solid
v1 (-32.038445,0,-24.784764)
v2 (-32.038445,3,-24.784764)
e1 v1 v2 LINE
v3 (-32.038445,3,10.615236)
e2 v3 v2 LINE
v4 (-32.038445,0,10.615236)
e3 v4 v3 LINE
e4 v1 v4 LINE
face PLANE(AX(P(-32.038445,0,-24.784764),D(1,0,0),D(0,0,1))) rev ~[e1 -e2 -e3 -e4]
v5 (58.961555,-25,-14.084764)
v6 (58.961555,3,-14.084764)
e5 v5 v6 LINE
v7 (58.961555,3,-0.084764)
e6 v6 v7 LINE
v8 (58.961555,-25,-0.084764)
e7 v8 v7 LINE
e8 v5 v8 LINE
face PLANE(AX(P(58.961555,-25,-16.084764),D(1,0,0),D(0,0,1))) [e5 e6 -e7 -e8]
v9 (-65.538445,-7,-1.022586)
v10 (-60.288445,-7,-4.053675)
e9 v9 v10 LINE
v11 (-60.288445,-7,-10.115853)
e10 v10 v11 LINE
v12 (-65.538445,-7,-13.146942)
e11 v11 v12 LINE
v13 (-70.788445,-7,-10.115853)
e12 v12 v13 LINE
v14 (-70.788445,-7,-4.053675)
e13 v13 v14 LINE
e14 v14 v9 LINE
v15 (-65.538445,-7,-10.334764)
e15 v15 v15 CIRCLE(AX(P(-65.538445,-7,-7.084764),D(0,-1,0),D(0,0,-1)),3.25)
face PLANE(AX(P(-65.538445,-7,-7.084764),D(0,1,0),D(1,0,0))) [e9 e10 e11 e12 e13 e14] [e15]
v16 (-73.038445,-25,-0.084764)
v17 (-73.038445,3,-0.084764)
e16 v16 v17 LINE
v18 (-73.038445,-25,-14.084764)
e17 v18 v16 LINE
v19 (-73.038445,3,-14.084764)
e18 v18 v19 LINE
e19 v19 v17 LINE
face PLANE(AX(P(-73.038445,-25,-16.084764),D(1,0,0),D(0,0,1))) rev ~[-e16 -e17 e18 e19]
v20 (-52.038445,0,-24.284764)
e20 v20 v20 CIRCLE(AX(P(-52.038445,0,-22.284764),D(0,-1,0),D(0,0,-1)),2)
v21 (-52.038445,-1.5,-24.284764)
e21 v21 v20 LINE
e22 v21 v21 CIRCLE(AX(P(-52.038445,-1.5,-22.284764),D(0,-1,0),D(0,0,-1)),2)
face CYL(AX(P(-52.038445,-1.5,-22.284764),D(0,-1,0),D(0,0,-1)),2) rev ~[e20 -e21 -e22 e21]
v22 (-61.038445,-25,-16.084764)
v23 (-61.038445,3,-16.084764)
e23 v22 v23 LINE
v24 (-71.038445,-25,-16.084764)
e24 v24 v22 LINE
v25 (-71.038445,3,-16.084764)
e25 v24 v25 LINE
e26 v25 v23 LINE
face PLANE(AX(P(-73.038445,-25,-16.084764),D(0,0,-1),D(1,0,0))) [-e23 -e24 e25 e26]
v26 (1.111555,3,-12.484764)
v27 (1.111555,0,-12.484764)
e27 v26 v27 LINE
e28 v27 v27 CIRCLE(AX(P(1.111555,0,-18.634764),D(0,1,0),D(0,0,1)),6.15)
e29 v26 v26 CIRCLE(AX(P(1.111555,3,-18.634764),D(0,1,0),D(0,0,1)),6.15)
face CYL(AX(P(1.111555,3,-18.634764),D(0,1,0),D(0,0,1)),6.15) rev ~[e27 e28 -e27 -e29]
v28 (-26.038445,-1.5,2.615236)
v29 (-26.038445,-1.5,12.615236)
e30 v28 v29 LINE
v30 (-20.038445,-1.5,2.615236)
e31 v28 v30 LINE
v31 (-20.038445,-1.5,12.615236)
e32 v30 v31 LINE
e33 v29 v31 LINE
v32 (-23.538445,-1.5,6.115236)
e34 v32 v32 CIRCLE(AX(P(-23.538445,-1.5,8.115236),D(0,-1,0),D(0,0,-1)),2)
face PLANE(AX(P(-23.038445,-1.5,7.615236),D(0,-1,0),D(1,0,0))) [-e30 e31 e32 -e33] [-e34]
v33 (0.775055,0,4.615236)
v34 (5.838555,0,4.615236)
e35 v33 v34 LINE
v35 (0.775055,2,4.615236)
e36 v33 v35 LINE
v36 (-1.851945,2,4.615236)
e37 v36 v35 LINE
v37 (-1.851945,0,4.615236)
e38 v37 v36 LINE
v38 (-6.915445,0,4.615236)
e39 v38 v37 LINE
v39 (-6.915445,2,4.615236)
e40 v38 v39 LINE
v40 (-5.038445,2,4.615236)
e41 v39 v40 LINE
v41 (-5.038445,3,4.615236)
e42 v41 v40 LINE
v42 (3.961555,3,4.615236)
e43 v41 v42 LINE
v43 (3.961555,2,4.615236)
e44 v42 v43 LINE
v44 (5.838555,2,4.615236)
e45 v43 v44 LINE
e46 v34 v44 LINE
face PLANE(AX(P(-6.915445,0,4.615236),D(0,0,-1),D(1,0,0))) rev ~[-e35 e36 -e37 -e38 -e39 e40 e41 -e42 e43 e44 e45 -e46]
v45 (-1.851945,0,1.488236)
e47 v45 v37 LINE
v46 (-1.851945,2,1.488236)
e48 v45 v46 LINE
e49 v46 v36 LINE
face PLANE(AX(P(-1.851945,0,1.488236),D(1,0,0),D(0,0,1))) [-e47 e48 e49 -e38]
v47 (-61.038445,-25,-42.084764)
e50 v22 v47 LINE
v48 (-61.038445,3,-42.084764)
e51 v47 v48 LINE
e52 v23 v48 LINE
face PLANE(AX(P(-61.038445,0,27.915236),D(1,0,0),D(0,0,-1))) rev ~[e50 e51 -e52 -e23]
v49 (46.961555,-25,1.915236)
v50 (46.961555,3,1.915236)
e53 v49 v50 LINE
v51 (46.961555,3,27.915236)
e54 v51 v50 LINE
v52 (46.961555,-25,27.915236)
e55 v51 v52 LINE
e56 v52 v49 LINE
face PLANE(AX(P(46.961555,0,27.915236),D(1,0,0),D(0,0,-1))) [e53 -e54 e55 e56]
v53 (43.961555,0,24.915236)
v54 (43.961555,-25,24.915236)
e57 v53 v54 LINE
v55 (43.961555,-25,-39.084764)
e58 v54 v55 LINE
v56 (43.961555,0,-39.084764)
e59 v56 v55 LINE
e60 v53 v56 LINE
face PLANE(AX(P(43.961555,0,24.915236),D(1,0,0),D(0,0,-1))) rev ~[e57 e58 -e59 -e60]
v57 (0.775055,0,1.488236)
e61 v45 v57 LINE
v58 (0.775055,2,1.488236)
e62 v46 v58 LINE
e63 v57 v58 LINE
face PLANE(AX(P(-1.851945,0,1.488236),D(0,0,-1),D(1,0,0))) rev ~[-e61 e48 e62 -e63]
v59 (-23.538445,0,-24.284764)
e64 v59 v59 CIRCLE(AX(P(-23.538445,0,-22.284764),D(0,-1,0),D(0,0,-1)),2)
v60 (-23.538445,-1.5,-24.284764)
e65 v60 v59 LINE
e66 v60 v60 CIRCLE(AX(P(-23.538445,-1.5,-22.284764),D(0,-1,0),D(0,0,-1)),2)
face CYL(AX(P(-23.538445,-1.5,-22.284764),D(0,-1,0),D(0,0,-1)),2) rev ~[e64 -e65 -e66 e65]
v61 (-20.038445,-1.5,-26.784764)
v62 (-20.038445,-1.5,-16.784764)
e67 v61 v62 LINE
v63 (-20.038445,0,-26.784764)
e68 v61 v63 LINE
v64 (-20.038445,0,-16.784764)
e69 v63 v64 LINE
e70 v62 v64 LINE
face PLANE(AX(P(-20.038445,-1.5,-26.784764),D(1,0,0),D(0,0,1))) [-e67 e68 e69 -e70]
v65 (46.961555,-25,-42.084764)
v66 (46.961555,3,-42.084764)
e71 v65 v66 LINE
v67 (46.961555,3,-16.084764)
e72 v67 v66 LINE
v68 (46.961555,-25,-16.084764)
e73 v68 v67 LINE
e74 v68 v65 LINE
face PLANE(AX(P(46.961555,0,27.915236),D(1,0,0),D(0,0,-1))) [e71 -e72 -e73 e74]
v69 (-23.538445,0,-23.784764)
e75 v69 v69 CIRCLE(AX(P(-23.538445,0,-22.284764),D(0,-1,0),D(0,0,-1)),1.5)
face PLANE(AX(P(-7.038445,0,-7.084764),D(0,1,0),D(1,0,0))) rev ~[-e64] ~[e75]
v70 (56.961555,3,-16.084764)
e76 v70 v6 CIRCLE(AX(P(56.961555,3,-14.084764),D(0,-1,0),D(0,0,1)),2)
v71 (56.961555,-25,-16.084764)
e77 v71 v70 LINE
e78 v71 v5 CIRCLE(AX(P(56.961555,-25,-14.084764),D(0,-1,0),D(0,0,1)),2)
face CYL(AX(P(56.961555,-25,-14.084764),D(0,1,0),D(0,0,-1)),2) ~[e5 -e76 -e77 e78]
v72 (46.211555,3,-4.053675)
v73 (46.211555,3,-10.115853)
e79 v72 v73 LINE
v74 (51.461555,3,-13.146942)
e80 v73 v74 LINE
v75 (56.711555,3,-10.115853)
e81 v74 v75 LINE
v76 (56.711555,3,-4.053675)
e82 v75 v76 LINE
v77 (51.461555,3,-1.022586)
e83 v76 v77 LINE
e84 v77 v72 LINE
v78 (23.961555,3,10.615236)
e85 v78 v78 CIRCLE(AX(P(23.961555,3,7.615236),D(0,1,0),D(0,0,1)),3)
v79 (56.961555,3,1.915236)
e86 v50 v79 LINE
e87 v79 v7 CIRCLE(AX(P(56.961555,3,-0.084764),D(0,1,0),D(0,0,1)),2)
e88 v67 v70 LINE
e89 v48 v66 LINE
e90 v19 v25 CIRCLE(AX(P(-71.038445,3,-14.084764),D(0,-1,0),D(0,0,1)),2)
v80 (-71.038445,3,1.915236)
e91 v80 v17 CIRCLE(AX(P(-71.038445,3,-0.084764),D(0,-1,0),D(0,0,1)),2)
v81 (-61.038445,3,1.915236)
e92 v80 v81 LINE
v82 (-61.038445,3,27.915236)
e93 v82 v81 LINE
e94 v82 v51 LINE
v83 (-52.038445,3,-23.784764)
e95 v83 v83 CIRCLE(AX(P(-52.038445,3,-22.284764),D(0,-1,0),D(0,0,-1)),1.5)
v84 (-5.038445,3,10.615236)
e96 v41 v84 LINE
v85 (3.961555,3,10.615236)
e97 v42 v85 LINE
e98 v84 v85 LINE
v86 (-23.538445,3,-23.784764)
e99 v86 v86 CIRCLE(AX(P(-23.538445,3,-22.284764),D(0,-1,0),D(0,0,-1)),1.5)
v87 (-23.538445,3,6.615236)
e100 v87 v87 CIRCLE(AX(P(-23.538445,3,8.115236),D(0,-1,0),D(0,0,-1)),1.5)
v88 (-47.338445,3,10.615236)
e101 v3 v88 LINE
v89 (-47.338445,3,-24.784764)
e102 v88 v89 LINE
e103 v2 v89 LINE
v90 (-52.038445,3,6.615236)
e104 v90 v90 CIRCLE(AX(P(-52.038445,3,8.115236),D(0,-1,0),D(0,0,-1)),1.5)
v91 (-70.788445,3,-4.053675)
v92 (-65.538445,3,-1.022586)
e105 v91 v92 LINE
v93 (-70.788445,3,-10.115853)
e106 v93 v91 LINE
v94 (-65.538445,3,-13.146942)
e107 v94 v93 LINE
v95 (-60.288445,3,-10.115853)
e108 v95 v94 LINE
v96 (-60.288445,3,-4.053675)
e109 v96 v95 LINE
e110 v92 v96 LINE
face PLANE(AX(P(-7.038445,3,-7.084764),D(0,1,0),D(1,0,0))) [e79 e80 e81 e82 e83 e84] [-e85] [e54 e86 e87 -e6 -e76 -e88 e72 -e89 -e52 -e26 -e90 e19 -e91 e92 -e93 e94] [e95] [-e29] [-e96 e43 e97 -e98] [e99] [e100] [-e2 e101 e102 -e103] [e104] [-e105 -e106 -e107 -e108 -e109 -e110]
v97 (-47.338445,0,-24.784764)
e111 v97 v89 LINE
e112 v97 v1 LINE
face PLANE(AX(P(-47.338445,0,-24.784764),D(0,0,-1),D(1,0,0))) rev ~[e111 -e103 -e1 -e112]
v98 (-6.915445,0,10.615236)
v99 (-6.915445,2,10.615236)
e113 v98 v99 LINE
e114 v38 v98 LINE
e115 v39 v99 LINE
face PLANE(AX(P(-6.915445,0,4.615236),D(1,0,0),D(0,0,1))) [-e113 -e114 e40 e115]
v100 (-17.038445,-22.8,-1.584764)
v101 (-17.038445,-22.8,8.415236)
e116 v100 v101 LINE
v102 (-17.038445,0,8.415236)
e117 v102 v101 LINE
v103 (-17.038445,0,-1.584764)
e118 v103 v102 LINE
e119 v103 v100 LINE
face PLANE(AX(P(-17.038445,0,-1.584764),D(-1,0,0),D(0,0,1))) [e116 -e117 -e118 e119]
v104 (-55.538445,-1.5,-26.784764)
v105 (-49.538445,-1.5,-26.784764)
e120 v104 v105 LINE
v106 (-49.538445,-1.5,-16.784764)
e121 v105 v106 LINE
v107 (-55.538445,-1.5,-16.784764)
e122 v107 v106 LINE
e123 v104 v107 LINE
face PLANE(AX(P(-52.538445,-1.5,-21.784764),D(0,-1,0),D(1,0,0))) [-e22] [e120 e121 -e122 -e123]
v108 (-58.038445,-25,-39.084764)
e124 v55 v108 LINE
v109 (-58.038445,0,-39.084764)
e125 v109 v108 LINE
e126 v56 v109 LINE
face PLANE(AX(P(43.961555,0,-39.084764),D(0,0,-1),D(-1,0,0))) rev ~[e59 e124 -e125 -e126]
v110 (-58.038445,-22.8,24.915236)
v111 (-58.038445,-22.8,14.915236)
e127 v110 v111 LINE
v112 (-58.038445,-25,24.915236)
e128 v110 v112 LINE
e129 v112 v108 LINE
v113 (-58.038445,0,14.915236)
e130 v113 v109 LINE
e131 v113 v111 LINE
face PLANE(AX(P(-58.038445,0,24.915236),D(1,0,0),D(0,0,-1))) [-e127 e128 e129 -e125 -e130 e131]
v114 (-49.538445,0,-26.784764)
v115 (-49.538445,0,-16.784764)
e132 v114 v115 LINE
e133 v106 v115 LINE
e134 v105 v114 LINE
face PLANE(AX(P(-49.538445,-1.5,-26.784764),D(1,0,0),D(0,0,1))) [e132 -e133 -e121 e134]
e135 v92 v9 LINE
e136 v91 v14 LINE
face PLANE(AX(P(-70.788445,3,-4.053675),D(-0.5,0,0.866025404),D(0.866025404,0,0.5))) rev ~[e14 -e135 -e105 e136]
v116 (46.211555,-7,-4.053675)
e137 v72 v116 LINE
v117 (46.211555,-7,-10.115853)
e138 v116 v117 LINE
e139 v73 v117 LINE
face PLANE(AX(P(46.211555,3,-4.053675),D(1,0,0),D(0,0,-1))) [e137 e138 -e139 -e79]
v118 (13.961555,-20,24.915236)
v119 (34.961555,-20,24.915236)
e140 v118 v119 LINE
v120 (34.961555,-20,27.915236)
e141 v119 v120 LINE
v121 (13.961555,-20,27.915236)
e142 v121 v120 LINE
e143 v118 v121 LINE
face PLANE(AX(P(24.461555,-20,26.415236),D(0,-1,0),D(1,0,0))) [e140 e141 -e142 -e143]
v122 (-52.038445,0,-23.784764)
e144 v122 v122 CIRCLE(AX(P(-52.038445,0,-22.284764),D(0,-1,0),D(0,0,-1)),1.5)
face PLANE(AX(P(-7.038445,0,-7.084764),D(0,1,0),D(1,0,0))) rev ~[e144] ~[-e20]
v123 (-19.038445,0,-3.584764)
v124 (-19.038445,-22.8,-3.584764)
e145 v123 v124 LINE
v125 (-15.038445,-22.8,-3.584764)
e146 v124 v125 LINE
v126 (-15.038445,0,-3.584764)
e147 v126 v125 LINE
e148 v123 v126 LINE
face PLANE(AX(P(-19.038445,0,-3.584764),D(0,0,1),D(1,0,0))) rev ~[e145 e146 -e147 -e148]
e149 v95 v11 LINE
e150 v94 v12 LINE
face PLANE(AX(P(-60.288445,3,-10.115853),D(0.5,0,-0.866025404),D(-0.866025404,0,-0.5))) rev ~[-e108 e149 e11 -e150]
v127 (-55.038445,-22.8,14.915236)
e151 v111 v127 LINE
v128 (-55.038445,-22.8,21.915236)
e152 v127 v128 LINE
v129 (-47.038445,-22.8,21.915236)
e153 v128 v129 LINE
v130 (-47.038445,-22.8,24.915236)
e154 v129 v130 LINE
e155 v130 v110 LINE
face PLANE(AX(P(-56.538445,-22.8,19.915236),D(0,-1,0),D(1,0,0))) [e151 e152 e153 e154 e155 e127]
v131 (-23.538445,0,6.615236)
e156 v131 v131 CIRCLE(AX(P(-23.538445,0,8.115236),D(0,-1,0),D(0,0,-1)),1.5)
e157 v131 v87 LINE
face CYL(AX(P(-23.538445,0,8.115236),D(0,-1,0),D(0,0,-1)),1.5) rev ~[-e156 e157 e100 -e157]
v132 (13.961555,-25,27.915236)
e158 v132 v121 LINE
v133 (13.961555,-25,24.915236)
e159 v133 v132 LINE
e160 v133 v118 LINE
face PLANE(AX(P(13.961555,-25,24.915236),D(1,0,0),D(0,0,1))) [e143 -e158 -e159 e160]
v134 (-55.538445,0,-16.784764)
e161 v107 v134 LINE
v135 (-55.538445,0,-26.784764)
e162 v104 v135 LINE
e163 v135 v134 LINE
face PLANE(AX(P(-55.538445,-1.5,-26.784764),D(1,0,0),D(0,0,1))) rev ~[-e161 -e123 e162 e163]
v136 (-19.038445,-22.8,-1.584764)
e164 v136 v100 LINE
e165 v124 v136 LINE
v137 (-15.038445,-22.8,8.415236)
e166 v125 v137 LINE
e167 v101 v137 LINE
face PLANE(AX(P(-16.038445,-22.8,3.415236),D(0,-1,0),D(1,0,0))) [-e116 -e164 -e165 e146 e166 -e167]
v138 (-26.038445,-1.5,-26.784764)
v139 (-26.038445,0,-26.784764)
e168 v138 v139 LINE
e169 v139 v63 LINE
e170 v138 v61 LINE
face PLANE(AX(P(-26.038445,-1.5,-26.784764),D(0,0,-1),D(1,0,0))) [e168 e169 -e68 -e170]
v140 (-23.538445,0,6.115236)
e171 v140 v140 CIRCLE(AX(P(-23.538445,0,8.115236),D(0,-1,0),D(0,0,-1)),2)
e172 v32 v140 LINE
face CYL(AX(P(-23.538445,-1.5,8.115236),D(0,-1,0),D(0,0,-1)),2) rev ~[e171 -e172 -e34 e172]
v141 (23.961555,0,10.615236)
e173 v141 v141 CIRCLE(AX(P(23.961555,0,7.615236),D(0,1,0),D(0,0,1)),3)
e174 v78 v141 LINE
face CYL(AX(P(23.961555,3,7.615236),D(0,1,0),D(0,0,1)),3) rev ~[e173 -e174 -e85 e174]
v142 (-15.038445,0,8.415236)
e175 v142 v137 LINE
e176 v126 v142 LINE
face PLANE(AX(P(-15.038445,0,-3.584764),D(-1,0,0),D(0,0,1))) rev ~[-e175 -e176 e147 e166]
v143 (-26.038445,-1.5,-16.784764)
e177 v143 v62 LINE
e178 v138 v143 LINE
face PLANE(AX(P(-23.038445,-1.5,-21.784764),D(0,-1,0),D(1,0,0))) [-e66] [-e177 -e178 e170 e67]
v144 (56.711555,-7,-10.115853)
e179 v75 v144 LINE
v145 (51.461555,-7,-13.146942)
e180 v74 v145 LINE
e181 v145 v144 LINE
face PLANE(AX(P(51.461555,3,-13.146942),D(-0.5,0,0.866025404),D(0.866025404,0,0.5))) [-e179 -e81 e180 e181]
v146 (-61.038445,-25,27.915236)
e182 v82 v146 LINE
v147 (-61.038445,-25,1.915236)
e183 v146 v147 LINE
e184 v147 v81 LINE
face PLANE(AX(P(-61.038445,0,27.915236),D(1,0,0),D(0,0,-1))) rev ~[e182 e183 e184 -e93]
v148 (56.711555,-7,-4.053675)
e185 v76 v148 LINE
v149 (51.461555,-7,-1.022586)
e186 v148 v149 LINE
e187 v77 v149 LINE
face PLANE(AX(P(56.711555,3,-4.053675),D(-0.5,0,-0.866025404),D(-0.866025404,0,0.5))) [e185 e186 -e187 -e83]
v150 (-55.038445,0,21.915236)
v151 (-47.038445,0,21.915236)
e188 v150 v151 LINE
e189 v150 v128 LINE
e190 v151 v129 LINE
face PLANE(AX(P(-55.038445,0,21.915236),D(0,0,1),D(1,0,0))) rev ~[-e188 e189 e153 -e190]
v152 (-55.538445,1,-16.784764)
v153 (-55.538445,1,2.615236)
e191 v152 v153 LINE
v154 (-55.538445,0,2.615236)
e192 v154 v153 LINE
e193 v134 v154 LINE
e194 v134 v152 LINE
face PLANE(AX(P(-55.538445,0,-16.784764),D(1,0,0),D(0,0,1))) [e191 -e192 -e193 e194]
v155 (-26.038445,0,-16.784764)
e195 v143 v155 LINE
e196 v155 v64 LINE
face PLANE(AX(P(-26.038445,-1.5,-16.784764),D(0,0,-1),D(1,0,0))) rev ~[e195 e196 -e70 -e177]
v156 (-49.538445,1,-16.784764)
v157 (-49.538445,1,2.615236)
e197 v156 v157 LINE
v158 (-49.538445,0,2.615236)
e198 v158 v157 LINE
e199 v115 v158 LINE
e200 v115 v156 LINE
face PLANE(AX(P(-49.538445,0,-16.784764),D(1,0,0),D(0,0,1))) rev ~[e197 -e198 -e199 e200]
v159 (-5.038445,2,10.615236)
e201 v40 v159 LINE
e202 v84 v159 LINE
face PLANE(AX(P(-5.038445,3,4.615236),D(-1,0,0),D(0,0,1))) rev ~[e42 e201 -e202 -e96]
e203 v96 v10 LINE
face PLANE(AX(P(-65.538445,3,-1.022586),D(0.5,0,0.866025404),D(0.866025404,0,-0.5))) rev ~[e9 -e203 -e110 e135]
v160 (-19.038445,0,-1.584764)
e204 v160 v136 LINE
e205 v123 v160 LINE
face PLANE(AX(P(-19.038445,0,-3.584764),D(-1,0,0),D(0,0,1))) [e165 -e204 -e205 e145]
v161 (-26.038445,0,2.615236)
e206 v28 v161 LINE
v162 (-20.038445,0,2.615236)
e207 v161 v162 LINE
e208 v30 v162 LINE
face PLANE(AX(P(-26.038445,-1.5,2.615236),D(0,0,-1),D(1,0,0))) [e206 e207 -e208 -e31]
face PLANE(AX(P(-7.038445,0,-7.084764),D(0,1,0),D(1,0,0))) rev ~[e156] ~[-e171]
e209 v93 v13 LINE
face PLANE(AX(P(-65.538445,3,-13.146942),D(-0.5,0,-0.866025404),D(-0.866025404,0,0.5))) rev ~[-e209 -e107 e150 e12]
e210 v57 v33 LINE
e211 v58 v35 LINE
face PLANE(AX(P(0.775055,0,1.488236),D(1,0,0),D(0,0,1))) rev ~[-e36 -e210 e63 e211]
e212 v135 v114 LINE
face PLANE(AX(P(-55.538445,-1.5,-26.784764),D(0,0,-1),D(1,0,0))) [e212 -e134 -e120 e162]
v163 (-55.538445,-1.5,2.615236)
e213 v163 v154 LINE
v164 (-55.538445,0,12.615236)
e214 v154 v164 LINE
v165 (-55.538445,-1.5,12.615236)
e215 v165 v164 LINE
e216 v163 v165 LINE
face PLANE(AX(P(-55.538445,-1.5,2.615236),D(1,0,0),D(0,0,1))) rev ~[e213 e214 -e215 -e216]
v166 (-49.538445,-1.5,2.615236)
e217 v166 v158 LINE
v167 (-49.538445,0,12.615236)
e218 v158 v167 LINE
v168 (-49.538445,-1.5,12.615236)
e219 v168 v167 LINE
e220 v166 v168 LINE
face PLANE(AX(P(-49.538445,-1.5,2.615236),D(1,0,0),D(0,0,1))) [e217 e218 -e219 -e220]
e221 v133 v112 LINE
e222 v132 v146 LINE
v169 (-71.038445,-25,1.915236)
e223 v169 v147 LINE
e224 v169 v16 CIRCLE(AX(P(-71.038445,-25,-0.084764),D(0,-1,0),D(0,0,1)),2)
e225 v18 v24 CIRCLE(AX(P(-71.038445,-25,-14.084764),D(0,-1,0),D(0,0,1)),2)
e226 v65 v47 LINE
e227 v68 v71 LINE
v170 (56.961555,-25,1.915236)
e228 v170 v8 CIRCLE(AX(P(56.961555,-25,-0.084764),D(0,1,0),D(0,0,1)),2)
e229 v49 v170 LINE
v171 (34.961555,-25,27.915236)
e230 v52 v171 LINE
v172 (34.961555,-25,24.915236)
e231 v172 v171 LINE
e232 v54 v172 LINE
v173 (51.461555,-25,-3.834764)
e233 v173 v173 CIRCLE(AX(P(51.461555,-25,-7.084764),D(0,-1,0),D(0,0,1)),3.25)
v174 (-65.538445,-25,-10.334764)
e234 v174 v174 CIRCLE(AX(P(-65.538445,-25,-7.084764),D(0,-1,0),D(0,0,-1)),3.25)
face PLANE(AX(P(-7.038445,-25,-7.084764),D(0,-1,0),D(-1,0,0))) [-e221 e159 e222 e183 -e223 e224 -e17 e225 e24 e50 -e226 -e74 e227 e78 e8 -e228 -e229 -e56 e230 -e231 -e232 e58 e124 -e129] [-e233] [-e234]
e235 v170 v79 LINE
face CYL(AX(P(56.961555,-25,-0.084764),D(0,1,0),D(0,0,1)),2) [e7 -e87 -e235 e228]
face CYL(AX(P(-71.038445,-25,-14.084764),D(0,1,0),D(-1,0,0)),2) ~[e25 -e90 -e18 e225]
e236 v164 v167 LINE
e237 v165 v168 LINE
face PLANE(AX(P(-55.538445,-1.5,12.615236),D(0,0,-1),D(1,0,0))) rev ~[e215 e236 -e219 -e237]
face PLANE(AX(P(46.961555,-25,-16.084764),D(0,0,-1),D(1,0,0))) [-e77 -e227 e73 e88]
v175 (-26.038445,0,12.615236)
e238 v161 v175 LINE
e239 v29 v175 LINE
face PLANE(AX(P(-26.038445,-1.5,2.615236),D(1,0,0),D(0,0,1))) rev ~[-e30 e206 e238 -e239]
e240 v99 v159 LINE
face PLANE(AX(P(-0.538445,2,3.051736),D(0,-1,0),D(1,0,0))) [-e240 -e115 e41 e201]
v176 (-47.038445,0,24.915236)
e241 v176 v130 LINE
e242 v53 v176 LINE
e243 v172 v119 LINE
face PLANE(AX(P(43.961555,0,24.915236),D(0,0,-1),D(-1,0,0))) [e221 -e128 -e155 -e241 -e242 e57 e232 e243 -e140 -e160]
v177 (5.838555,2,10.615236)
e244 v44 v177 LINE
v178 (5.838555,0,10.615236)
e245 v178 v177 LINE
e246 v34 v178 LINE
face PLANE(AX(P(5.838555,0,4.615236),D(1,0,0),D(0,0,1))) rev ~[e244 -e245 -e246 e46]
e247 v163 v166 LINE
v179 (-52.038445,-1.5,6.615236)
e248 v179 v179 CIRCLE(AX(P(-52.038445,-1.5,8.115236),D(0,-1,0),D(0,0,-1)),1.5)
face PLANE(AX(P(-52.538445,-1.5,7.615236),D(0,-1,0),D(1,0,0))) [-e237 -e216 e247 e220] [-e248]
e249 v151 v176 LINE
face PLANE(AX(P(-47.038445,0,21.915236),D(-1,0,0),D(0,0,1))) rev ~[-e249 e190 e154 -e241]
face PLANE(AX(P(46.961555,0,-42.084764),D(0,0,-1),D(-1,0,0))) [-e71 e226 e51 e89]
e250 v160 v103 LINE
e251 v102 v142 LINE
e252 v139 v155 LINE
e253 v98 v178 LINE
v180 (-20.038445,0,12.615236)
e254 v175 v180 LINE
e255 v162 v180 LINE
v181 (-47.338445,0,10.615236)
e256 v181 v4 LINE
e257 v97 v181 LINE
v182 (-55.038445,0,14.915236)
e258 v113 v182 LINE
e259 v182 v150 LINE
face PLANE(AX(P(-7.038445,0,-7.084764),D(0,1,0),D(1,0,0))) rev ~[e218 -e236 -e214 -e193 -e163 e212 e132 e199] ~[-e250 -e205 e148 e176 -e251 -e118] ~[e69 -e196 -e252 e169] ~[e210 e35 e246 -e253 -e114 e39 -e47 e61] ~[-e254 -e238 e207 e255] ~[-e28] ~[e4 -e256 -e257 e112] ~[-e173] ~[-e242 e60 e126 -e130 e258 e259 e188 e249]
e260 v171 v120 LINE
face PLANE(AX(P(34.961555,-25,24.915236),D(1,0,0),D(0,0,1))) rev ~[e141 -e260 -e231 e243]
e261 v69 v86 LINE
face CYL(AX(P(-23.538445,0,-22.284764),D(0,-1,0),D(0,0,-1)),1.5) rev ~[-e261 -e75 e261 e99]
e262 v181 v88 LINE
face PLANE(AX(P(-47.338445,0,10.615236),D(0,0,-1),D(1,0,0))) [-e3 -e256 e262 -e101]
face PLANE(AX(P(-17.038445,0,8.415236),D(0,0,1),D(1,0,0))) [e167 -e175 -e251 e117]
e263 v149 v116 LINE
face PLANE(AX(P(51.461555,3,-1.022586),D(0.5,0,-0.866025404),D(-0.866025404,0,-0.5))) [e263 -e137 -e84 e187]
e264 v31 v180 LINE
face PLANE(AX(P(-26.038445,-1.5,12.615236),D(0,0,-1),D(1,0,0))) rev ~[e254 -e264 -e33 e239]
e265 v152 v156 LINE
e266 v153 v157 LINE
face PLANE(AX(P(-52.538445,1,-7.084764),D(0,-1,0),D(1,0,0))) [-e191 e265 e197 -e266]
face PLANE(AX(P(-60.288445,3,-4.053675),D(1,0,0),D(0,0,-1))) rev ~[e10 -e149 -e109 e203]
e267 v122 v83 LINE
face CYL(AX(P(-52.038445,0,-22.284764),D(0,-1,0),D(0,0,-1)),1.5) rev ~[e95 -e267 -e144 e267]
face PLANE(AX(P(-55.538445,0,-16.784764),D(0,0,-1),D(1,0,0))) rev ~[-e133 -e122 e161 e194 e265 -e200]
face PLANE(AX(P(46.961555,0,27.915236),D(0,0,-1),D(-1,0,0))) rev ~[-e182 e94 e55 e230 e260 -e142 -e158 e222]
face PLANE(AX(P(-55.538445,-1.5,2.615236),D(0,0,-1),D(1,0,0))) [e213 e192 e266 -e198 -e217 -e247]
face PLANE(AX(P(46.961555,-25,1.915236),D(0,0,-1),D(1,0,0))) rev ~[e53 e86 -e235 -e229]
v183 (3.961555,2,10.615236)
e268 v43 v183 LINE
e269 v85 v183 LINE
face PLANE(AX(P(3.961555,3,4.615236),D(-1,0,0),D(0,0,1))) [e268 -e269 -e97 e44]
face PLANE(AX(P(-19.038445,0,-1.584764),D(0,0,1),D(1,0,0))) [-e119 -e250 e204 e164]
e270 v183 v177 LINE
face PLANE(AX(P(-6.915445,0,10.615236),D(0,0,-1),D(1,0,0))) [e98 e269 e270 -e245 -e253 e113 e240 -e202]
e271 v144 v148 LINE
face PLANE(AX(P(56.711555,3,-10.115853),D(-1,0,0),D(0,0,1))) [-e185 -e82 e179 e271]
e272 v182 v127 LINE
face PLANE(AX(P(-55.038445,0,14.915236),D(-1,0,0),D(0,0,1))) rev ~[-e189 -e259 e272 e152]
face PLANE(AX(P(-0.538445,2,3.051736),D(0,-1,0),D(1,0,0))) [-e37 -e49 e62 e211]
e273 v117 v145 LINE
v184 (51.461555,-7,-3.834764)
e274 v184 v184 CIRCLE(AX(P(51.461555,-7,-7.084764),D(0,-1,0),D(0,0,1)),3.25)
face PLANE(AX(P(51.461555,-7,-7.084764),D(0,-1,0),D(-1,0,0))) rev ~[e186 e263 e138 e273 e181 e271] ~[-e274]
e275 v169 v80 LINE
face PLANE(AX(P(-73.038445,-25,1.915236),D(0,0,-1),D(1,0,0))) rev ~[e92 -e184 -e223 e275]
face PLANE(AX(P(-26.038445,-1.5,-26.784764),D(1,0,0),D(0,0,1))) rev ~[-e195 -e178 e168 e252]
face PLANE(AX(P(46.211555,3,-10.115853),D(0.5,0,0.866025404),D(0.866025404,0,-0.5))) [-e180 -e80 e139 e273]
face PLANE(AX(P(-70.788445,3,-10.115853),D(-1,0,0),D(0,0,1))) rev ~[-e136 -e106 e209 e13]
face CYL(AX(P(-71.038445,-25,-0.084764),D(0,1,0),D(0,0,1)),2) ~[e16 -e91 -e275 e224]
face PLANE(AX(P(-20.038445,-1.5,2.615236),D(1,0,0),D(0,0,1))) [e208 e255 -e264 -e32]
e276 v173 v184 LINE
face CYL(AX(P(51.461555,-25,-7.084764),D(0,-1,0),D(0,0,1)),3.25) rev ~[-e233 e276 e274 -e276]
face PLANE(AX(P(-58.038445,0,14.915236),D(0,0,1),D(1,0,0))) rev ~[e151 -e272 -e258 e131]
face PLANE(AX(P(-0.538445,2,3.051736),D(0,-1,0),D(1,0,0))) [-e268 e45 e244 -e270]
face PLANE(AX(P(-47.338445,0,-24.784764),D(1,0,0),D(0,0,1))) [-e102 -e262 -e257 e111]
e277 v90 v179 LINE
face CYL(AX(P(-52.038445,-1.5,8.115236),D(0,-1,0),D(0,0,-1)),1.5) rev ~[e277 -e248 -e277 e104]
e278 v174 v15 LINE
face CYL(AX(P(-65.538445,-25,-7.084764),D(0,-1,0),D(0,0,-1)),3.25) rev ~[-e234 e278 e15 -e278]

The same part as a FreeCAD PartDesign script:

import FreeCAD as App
import Part
import Sketcher
Q = App.Units.Quantity


def edges_at(feature, points):
    """Names of the edges that pass closest to the given points."""
    edges = feature.Shape.Edges
    near = lambda p: min(range(len(edges)), key=lambda i: edges[i].distToShape(Part.Vertex(*p))[0])
    return sorted({f"Edge{near(p) + 1}" for p in points})


def add_polygon(sketch, points):
    """Adds a closed chain of lines whose ends are joined by coincident constraints."""
    first, n = sketch.GeometryCount, len(points)
    for a, b in zip(points, points[1:] + points[:1]):
        sketch.addGeometry(Part.LineSegment(App.Vector(*a, 0), App.Vector(*b, 0)), False)
    for i in range(n):
        sketch.addConstraint(Sketcher.Constraint("Coincident", first + i, 2, first + (i + 1) % n, 1))

doc = App.newDocument("Part")
body = doc.addObject("PartDesign::Body", "Body")

# Sketch on XZ plane
sketch1 = doc.addObject("Sketcher::SketchObject", "Sketch")
body.addObject(sketch1)
sketch1.AttachmentSupport = (doc.XZ_Plane, [""])
sketch1.MapMode = "FlatFace"
add_polygon(sketch1, [(-61, -42), (-61, 28), (47, 28), (47, -42)])  # lines 0-3
sketch1.addConstraint(Sketcher.Constraint("Vertical", 0))
sketch1.addConstraint(Sketcher.Constraint("Horizontal", 1))
sketch1.addConstraint(Sketcher.Constraint("Vertical", 2))
sketch1.addConstraint(Sketcher.Constraint("Horizontal", 3))
sketch1.addConstraint(Sketcher.Constraint("DistanceX", 1, 1, 1, 2, Q("108 mm")))
sketch1.addConstraint(Sketcher.Constraint("DistanceY", 0, 1, 0, 2, Q("70 mm")))
sketch1.addConstraint(Sketcher.Constraint("DistanceX", 0, 2, -1, 1, Q("61.038445 mm")))
sketch1.addConstraint(Sketcher.Constraint("DistanceY", -1, 1, 0, 2, Q("27.915236 mm")))
pad1 = doc.addObject("PartDesign::Pad", "Pad")
body.addObject(pad1)
pad1.Profile = sketch1
pad1.Length = 3
pad1.Reversed = True

# Sketch on XZ plane
sketch2 = doc.addObject("Sketcher::SketchObject", "Sketch001")
body.addObject(sketch2)
sketch2.AttachmentSupport = (doc.XZ_Plane, [""])
sketch2.MapMode = "FlatFace"
add_polygon(sketch2, [(47, -42), (47, 28), (-61, 28), (-61, -42)])  # lines 0-3
add_polygon(sketch2, [(-58, 25), (44, 25), (44, -39), (-58, -39)])  # lines 4-7
sketch2.addConstraint(Sketcher.Constraint("Vertical", 0))
sketch2.addConstraint(Sketcher.Constraint("Horizontal", 1))
sketch2.addConstraint(Sketcher.Constraint("Vertical", 2))
sketch2.addConstraint(Sketcher.Constraint("Horizontal", 3))
sketch2.addConstraint(Sketcher.Constraint("Horizontal", 4))
sketch2.addConstraint(Sketcher.Constraint("Vertical", 5))
sketch2.addConstraint(Sketcher.Constraint("Horizontal", 6))
sketch2.addConstraint(Sketcher.Constraint("Vertical", 7))
sketch2.addConstraint(Sketcher.Constraint("DistanceX", 1, 2, 1, 1, Q("108 mm")))
sketch2.addConstraint(Sketcher.Constraint("DistanceX", 4, 1, 4, 2, Q("102 mm")))
sketch2.addConstraint(Sketcher.Constraint("DistanceY", 0, 1, 0, 2, Q("70 mm")))
sketch2.addConstraint(Sketcher.Constraint("DistanceY", 5, 2, 5, 1, Q("64 mm")))
sketch2.addConstraint(Sketcher.Constraint("DistanceX", 4, 2, 0, 2, Q("3 mm")))
sketch2.addConstraint(Sketcher.Constraint("DistanceY", 4, 2, 0, 2, Q("3 mm")))
sketch2.addConstraint(Sketcher.Constraint("DistanceX", -1, 1, 0, 2, Q("46.961555 mm")))
sketch2.addConstraint(Sketcher.Constraint("DistanceY", -1, 1, 0, 2, Q("27.915236 mm")))
pad2 = doc.addObject("PartDesign::Pad", "Pad001")
body.addObject(pad2)
pad2.Profile = sketch2
pad2.Length = 25

# Sketch on XZ plane
sketch3 = doc.addObject("Sketcher::SketchObject", "Sketch002")
body.addObject(sketch3)
sketch3.AttachmentSupport = (doc.XZ_Plane, [""])
sketch3.MapMode = "FlatFace"
add_polygon(sketch3, [(-17, 8.4), (-17, -1.6), (-19, -1.6), (-19, -3.6), (-15, -3.6), (-15, 8.4)])  # lines 0-5
add_polygon(sketch3, [(-58, 14.9), (-55, 14.9), (-55, 21.9), (-47, 21.9), (-47, 24.9), (-58, 24.9)])  # lines 6-11
sketch3.addConstraint(Sketcher.Constraint("Vertical", 0))
sketch3.addConstraint(Sketcher.Constraint("Horizontal", 1))
sketch3.addConstraint(Sketcher.Constraint("Vertical", 2))
sketch3.addConstraint(Sketcher.Constraint("Horizontal", 3))
sketch3.addConstraint(Sketcher.Constraint("Vertical", 4))
sketch3.addConstraint(Sketcher.Constraint("Horizontal", 5))
sketch3.addConstraint(Sketcher.Constraint("Horizontal", 6))
sketch3.addConstraint(Sketcher.Constraint("Vertical", 7))
sketch3.addConstraint(Sketcher.Constraint("Horizontal", 8))
sketch3.addConstraint(Sketcher.Constraint("Vertical", 9))
sketch3.addConstraint(Sketcher.Constraint("Horizontal", 10))
sketch3.addConstraint(Sketcher.Constraint("Vertical", 11))
sketch3.addConstraint(Sketcher.Constraint("Equal", 1, 5))
sketch3.addConstraint(Sketcher.Constraint("Equal", 5, 2))
sketch3.addConstraint(Sketcher.Constraint("Equal", 6, 9))
sketch3.addConstraint(Sketcher.Constraint("Equal", 0, 11))
sketch3.addConstraint(Sketcher.Constraint("DistanceX", 1, 2, 1, 1, Q("2 mm")))
sketch3.addConstraint(Sketcher.Constraint("DistanceX", 6, 1, 6, 2, Q("3 mm")))
sketch3.addConstraint(Sketcher.Constraint("DistanceX", 8, 1, 8, 2, Q("8 mm")))
sketch3.addConstraint(Sketcher.Constraint("DistanceY", 0, 2, 0, 1, Q("10 mm")))
sketch3.addConstraint(Sketcher.Constraint("DistanceX", 6, 2, 5, 2, Q("38 mm")))
sketch3.addConstraint(Sketcher.Constraint("DistanceY", 5, 2, 6, 2, Q("6.5 mm")))
sketch3.addConstraint(Sketcher.Constraint("DistanceX", 0, 2, -1, 1, Q("17.038445 mm")))
sketch3.addConstraint(Sketcher.Constraint("DistanceY", 0, 2, -1, 1, Q("1.584764 mm")))
pad3 = doc.addObject("PartDesign::Pad", "Pad002")
body.addObject(pad3)
pad3.Profile = sketch3
pad3.Length = 22.8

# Sketch on XZ plane
sketch4 = doc.addObject("Sketcher::SketchObject", "Sketch003")
body.addObject(sketch4)
sketch4.AttachmentSupport = (doc.XZ_Plane, [""])
sketch4.MapMode = "FlatFace"
add_polygon(sketch4, [(-56, 3), (-56, -17), (-50, -17), (-50, 3)])  # lines 0-3
sketch4.addConstraint(Sketcher.Constraint("Vertical", 0))
sketch4.addConstraint(Sketcher.Constraint("Horizontal", 1))
sketch4.addConstraint(Sketcher.Constraint("Vertical", 2))
sketch4.addConstraint(Sketcher.Constraint("Horizontal", 3))
sketch4.addConstraint(Sketcher.Constraint("DistanceX", 1, 1, 1, 2, Q("6 mm")))
sketch4.addConstraint(Sketcher.Constraint("DistanceY", 0, 2, 0, 1, Q("19.4 mm")))
sketch4.addConstraint(Sketcher.Constraint("DistanceX", 0, 2, -1, 1, Q("55.538445 mm")))
sketch4.addConstraint(Sketcher.Constraint("DistanceY", 0, 2, -1, 1, Q("16.784764 mm")))
pocket1 = doc.addObject("PartDesign::Pocket", "Pocket")
body.addObject(pocket1)
pocket1.Profile = sketch4
pocket1.Length = 1

# Sketch on XZ plane
sketch5 = doc.addObject("Sketcher::SketchObject", "Sketch004")
body.addObject(sketch5)
sketch5.AttachmentSupport = (doc.XZ_Plane, [""])
sketch5.MapMode = "FlatFace"
sketch5.addGeometry(Part.Circle(App.Vector(-52, -22.3, 0), App.Vector(0, 0, 1), 1.5), False)  # 0
sketch5.addGeometry(Part.Circle(App.Vector(-23.5, -22.3, 0), App.Vector(0, 0, 1), 1.5), False)  # 1
sketch5.addGeometry(Part.Circle(App.Vector(-23.5, 8.1, 0), App.Vector(0, 0, 1), 1.5), False)  # 2
sketch5.addGeometry(Part.Circle(App.Vector(-52, 8.1, 0), App.Vector(0, 0, 1), 1.5), False)  # 3
add_polygon(sketch5, [(-47.3, 10.6), (-47.3, -24.8), (-32, -24.8), (-32, 10.6)])  # lines 4-7
sketch5.addConstraint(Sketcher.Constraint("Vertical", 4))
sketch5.addConstraint(Sketcher.Constraint("Horizontal", 5))
sketch5.addConstraint(Sketcher.Constraint("Vertical", 6))
sketch5.addConstraint(Sketcher.Constraint("Horizontal", 7))
sketch5.addConstraint(Sketcher.Constraint("Equal", 0, 1))
sketch5.addConstraint(Sketcher.Constraint("Equal", 1, 2))
sketch5.addConstraint(Sketcher.Constraint("Equal", 2, 3))
sketch5.addConstraint(Sketcher.Constraint("Horizontal", 0, 3, 1, 3))
sketch5.addConstraint(Sketcher.Constraint("Horizontal", 2, 3, 3, 3))
sketch5.addConstraint(Sketcher.Constraint("Vertical", 1, 3, 2, 3))
sketch5.addConstraint(Sketcher.Constraint("Vertical", 0, 3, 3, 3))
sketch5.addConstraint(Sketcher.Constraint("Diameter", 0, Q("3 mm")))
sketch5.addConstraint(Sketcher.Constraint("DistanceX", 5, 1, 5, 2, Q("15.3 mm")))
sketch5.addConstraint(Sketcher.Constraint("DistanceY", 4, 2, 4, 1, Q("35.4 mm")))
sketch5.addConstraint(Sketcher.Constraint("DistanceX", 0, 3, 5, 2, Q("20 mm")))
sketch5.addConstraint(Sketcher.Constraint("DistanceX", 0, 3, 1, 3, Q("28.5 mm")))
sketch5.addConstraint(Sketcher.Constraint("DistanceY", 1, 3, 2, 3, Q("30.4 mm")))
sketch5.addConstraint(Sketcher.Constraint("DistanceY", 4, 2, 0, 3, Q("2.5 mm")))
sketch5.addConstraint(Sketcher.Constraint("DistanceX", 0, 3, -1, 1, Q("52.038445 mm")))
sketch5.addConstraint(Sketcher.Constraint("DistanceY", 0, 3, -1, 1, Q("22.284764 mm")))
pocket2 = doc.addObject("PartDesign::Pocket", "Pocket001")
body.addObject(pocket2)
pocket2.Profile = sketch5
pocket2.Type = "ThroughAll"

# Sketch on XZ plane
sketch6 = doc.addObject("Sketcher::SketchObject", "Sketch005")
body.addObject(sketch6)
sketch6.AttachmentSupport = (doc.XZ_Plane, [""])
sketch6.MapMode = "FlatFace"
sketch6.AttachmentOffset = App.Placement(App.Vector(0, 0, 1.5), App.Rotation())
add_polygon(sketch6, [(-55.5, 12.6), (-55.5, 2.6), (-49.5, 2.6), (-49.5, 12.6)])  # lines 0-3
sketch6.addGeometry(Part.Circle(App.Vector(-52, 8.1, 0), App.Vector(0, 0, 1), 1.5), False)  # 4
add_polygon(sketch6, [(-55.5, -16.8), (-55.5, -26.8), (-49.5, -26.8), (-49.5, -16.8)])  # lines 5-8
sketch6.addGeometry(Part.Circle(App.Vector(-52, -22.3, 0), App.Vector(0, 0, 1), 2), False)  # 9
add_polygon(sketch6, [(-26, -16.8), (-26, -26.8), (-20, -26.8), (-20, -16.8)])  # lines 10-13
sketch6.addGeometry(Part.Circle(App.Vector(-23.5, -22.3, 0), App.Vector(0, 0, 1), 2), False)  # 14
add_polygon(sketch6, [(-26, 12.6), (-26, 2.6), (-20, 2.6), (-20, 12.6)])  # lines 15-18
sketch6.addGeometry(Part.Circle(App.Vector(-23.5, 8.1, 0), App.Vector(0, 0, 1), 2), False)  # 19
sketch6.addConstraint(Sketcher.Constraint("Vertical", 0))
sketch6.addConstraint(Sketcher.Constraint("Horizontal", 1))
sketch6.addConstraint(Sketcher.Constraint("Vertical", 2))
sketch6.addConstraint(Sketcher.Constraint("Horizontal", 3))
sketch6.addConstraint(Sketcher.Constraint("Vertical", 5))
sketch6.addConstraint(Sketcher.Constraint("Horizontal", 6))
sketch6.addConstraint(Sketcher.Constraint("Vertical", 7))
sketch6.addConstraint(Sketcher.Constraint("Horizontal", 8))
sketch6.addConstraint(Sketcher.Constraint("Vertical", 10))
sketch6.addConstraint(Sketcher.Constraint("Horizontal", 11))
sketch6.addConstraint(Sketcher.Constraint("Vertical", 12))
sketch6.addConstraint(Sketcher.Constraint("Horizontal", 13))
sketch6.addConstraint(Sketcher.Constraint("Vertical", 15))
sketch6.addConstraint(Sketcher.Constraint("Horizontal", 16))
sketch6.addConstraint(Sketcher.Constraint("Vertical", 17))
sketch6.addConstraint(Sketcher.Constraint("Horizontal", 18))
sketch6.addConstraint(Sketcher.Constraint("Equal", 9, 14))
sketch6.addConstraint(Sketcher.Constraint("Equal", 14, 19))
sketch6.addConstraint(Sketcher.Constraint("Horizontal", 9, 3, 14, 3))
sketch6.addConstraint(Sketcher.Constraint("Horizontal", 4, 3, 19, 3))
sketch6.addConstraint(Sketcher.Constraint("Horizontal", 6, 2, 10, 2))
sketch6.addConstraint(Sketcher.Constraint("Horizontal", 8, 2, 12, 2))
sketch6.addConstraint(Sketcher.Constraint("Horizontal", 1, 2, 15, 2))
sketch6.addConstraint(Sketcher.Constraint("Horizontal", 3, 2, 17, 2))
sketch6.addConstraint(Sketcher.Constraint("Vertical", 4, 3, 9, 3))
sketch6.addConstraint(Sketcher.Constraint("Vertical", 14, 3, 19, 3))
sketch6.addConstraint(Sketcher.Constraint("Vertical", 3, 2, 5, 2))
sketch6.addConstraint(Sketcher.Constraint("Vertical", 2, 2, 6, 2))
sketch6.addConstraint(Sketcher.Constraint("Vertical", 13, 2, 15, 2))
sketch6.addConstraint(Sketcher.Constraint("Vertical", 12, 2, 16, 2))
sketch6.addConstraint(Sketcher.Constraint("Equal", 8, 11))
sketch6.addConstraint(Sketcher.Constraint("Equal", 2, 5))
sketch6.addConstraint(Sketcher.Constraint("Diameter", 4, Q("3 mm")))
sketch6.addConstraint(Sketcher.Constraint("Diameter", 9, Q("4 mm")))
sketch6.addConstraint(Sketcher.Constraint("DistanceX", 1, 1, 1, 2, Q("6 mm")))
sketch6.addConstraint(Sketcher.Constraint("DistanceY", 0, 2, 0, 1, Q("10 mm")))
sketch6.addConstraint(Sketcher.Constraint("DistanceX", 0, 2, 19, 3, Q("32 mm")))
sketch6.addConstraint(Sketcher.Constraint("DistanceX", 9, 3, 10, 2, Q("26 mm")))
sketch6.addConstraint(Sketcher.Constraint("DistanceY", 9, 3, 4, 3, Q("30.4 mm")))
sketch6.addConstraint(Sketcher.Constraint("DistanceX", 9, 3, 14, 3, Q("28.5 mm")))
sketch6.addConstraint(Sketcher.Constraint("DistanceY", 0, 2, 4, 3, Q("5.5 mm")))
sketch6.addConstraint(Sketcher.Constraint("DistanceY", 5, 2, 9, 3, Q("4.5 mm")))
sketch6.addConstraint(Sketcher.Constraint("DistanceX", 4, 3, -1, 1, Q("52.038445 mm")))
sketch6.addConstraint(Sketcher.Constraint("DistanceY", -1, 1, 4, 3, Q("8.115236 mm")))
pad4 = doc.addObject("PartDesign::Pad", "Pad003")
body.addObject(pad4)
pad4.Profile = sketch6
pad4.Length = 1.5
pad4.Reversed = True

# Sketch on XZ plane
sketch7 = doc.addObject("Sketcher::SketchObject", "Sketch006")
body.addObject(sketch7)
sketch7.AttachmentSupport = (doc.XZ_Plane, [""])
sketch7.MapMode = "FlatFace"
sketch7.AttachmentOffset = App.Placement(App.Vector(0, 0, -3), App.Rotation())
add_polygon(sketch7, [(-5, 11), (-5, 5), (4, 5), (4, 11)])  # lines 0-3
sketch7.addConstraint(Sketcher.Constraint("Vertical", 0))
sketch7.addConstraint(Sketcher.Constraint("Horizontal", 1))
sketch7.addConstraint(Sketcher.Constraint("Vertical", 2))
sketch7.addConstraint(Sketcher.Constraint("Horizontal", 3))
sketch7.addConstraint(Sketcher.Constraint("DistanceX", 1, 1, 1, 2, Q("9 mm")))
sketch7.addConstraint(Sketcher.Constraint("DistanceY", 0, 2, 0, 1, Q("6 mm")))
sketch7.addConstraint(Sketcher.Constraint("DistanceX", 0, 2, -1, 1, Q("5.038445 mm")))
sketch7.addConstraint(Sketcher.Constraint("DistanceY", -1, 1, 0, 2, Q("4.615236 mm")))
pocket3 = doc.addObject("PartDesign::Pocket", "Pocket002")
body.addObject(pocket3)
pocket3.Profile = sketch7
pocket3.Length = 1
pocket3.Reversed = True

# Sketch on XZ plane
sketch8 = doc.addObject("Sketcher::SketchObject", "Sketch007")
body.addObject(sketch8)
sketch8.AttachmentSupport = (doc.XZ_Plane, [""])
sketch8.MapMode = "FlatFace"
add_polygon(sketch8, [(-1.9, 4.6), (-1.9, 1.5), (0.8, 1.5), (0.8, 4.6), (5.8, 4.6), (5.8, 10.6), (-6.9, 10.6), (-6.9, 4.6)])  # lines 0-7
sketch8.addConstraint(Sketcher.Constraint("Vertical", 0))
sketch8.addConstraint(Sketcher.Constraint("Horizontal", 1))
sketch8.addConstraint(Sketcher.Constraint("Vertical", 2))
sketch8.addConstraint(Sketcher.Constraint("Horizontal", 3))
sketch8.addConstraint(Sketcher.Constraint("Vertical", 4))
sketch8.addConstraint(Sketcher.Constraint("Horizontal", 5))
sketch8.addConstraint(Sketcher.Constraint("Vertical", 6))
sketch8.addConstraint(Sketcher.Constraint("Horizontal", 7))
sketch8.addConstraint(Sketcher.Constraint("Horizontal", 3, 2, 6, 2))
sketch8.addConstraint(Sketcher.Constraint("Equal", 3, 7))
sketch8.addConstraint(Sketcher.Constraint("DistanceY", 4, 1, 4, 2, Q("6 mm")))
sketch8.addConstraint(Sketcher.Constraint("DistanceX", 1, 1, 1, 2, Q("2.627 mm")))
sketch8.addConstraint(Sketcher.Constraint("DistanceX", 5, 2, 5, 1, Q("12.754 mm")))
sketch8.addConstraint(Sketcher.Constraint("DistanceY", 0, 2, 0, 1, Q("3.127 mm")))
sketch8.addConstraint(Sketcher.Constraint("DistanceX", 0, 2, -1, 1, Q("1.851945 mm")))
sketch8.addConstraint(Sketcher.Constraint("DistanceY", -1, 1, 0, 2, Q("1.488236 mm")))
pocket4 = doc.addObject("PartDesign::Pocket", "Pocket003")
body.addObject(pocket4)
pocket4.Profile = sketch8
pocket4.Length = 2

# Sketch on XZ plane
sketch9 = doc.addObject("Sketcher::SketchObject", "Sketch008")
body.addObject(sketch9)
sketch9.AttachmentSupport = (doc.XZ_Plane, [""])
sketch9.MapMode = "FlatFace"
sketch9.AttachmentOffset = App.Placement(App.Vector(0, 0, -3), App.Rotation())
sketch9.addGeometry(Part.Circle(App.Vector(1.1, -18.6, 0), App.Vector(0, 0, 1), 6.2), False)
sketch9.addGeometry(Part.Circle(App.Vector(24, 7.6, 0), App.Vector(0, 0, 1), 3), False)
sketch9.addConstraint(Sketcher.Constraint("Diameter", 1, Q("6 mm")))
sketch9.addConstraint(Sketcher.Constraint("Diameter", 0, Q("12.3 mm")))
sketch9.addConstraint(Sketcher.Constraint("DistanceX", 0, 3, 1, 3, Q("22.85 mm")))
sketch9.addConstraint(Sketcher.Constraint("DistanceY", 0, 3, 1, 3, Q("26.25 mm")))
sketch9.addConstraint(Sketcher.Constraint("DistanceX", -1, 1, 0, 3, Q("1.111555 mm")))
sketch9.addConstraint(Sketcher.Constraint("DistanceY", 0, 3, -1, 1, Q("18.634764 mm")))
pocket5 = doc.addObject("PartDesign::Pocket", "Pocket004")
body.addObject(pocket5)
pocket5.Profile = sketch9
pocket5.Type = "ThroughAll"
pocket5.Reversed = True

# Sketch on XZ plane
sketch10 = doc.addObject("Sketcher::SketchObject", "Sketch009")
body.addObject(sketch10)
sketch10.AttachmentSupport = (doc.XZ_Plane, [""])
sketch10.MapMode = "FlatFace"
sketch10.AttachmentOffset = App.Placement(App.Vector(0, 0, 25), App.Rotation())
add_polygon(sketch10, [(14, 27.9), (14, 24.9), (35, 24.9), (35, 27.9)])  # lines 0-3
sketch10.addConstraint(Sketcher.Constraint("Vertical", 0))
sketch10.addConstraint(Sketcher.Constraint("Horizontal", 1))
sketch10.addConstraint(Sketcher.Constraint("Vertical", 2))
sketch10.addConstraint(Sketcher.Constraint("Horizontal", 3))
sketch10.addConstraint(Sketcher.Constraint("DistanceX", 1, 1, 1, 2, Q("21 mm")))
sketch10.addConstraint(Sketcher.Constraint("DistanceY", 0, 2, 0, 1, Q("3 mm")))
sketch10.addConstraint(Sketcher.Constraint("DistanceX", -1, 1, 0, 2, Q("13.961555 mm")))
sketch10.addConstraint(Sketcher.Constraint("DistanceY", -1, 1, 0, 2, Q("24.915236 mm")))
pocket6 = doc.addObject("PartDesign::Pocket", "Pocket005")
body.addObject(pocket6)
pocket6.Profile = sketch10
pocket6.Length = 5

# Sketch on XZ plane
sketch11 = doc.addObject("Sketcher::SketchObject", "Sketch010")
body.addObject(sketch11)
sketch11.AttachmentSupport = (doc.XZ_Plane, [""])
sketch11.MapMode = "FlatFace"
sketch11.AttachmentOffset = App.Placement(App.Vector(0, 0, 25), App.Rotation())
add_polygon(sketch11, [(-73, 1.9), (-73, -16.1), (-61, -16.1), (-61, 1.9)])  # lines 0-3
sketch11.addGeometry(Part.Circle(App.Vector(-65.5, -7.1, 0), App.Vector(0, 0, 1), 3.2), False)  # 4
add_polygon(sketch11, [(47, 1.9), (47, -16.1), (59, -16.1), (59, 1.9)])  # lines 5-8
sketch11.addGeometry(Part.Circle(App.Vector(51.5, -7.1, 0), App.Vector(0, 0, 1), 3.2), False)  # 9
sketch11.addConstraint(Sketcher.Constraint("Vertical", 0))
sketch11.addConstraint(Sketcher.Constraint("Horizontal", 1))
sketch11.addConstraint(Sketcher.Constraint("Vertical", 2))
sketch11.addConstraint(Sketcher.Constraint("Horizontal", 3))
sketch11.addConstraint(Sketcher.Constraint("Vertical", 5))
sketch11.addConstraint(Sketcher.Constraint("Horizontal", 6))
sketch11.addConstraint(Sketcher.Constraint("Vertical", 7))
sketch11.addConstraint(Sketcher.Constraint("Horizontal", 8))
sketch11.addConstraint(Sketcher.Constraint("Equal", 4, 9))
sketch11.addConstraint(Sketcher.Constraint("Horizontal", 4, 3, 9, 3))
sketch11.addConstraint(Sketcher.Constraint("Horizontal", 1, 2, 5, 2))
sketch11.addConstraint(Sketcher.Constraint("Horizontal", 3, 2, 7, 2))
sketch11.addConstraint(Sketcher.Constraint("Equal", 3, 6))
sketch11.addConstraint(Sketcher.Constraint("Diameter", 4, Q("6.5 mm")))
sketch11.addConstraint(Sketcher.Constraint("DistanceX", 1, 1, 1, 2, Q("12 mm")))
sketch11.addConstraint(Sketcher.Constraint("DistanceY", 0, 2, 0, 1, Q("18 mm")))
sketch11.addConstraint(Sketcher.Constraint("DistanceX", 4, 3, 9, 3, Q("117 mm")))
sketch11.addConstraint(Sketcher.Constraint("DistanceY", 0, 2, 4, 3, Q("9 mm")))
sketch11.addConstraint(Sketcher.Constraint("DistanceX", 1, 2, 5, 2, Q("108 mm")))
sketch11.addConstraint(Sketcher.Constraint("DistanceX", 0, 2, 4, 3, Q("7.5 mm")))
sketch11.addConstraint(Sketcher.Constraint("DistanceX", 4, 3, -1, 1, Q("65.538445 mm")))
sketch11.addConstraint(Sketcher.Constraint("DistanceY", 4, 3, -1, 1, Q("7.084764 mm")))
pad5 = doc.addObject("PartDesign::Pad", "Pad004")
body.addObject(pad5)
pad5.Profile = sketch11
pad5.Length = 28
pad5.Reversed = True
doc.recompute()

fillet = doc.addObject("PartDesign::Fillet", "Fillet")
body.addObject(fillet)
fillet.Base = (pad5, edges_at(pad5, [
    (-73.038, -11, -16.085),
    (-73.038, -11, 1.915),
    (58.962, -11, 1.915),
    (58.962, -11, -16.085),
]))
fillet.Radius = 2

# Sketch on XZ plane
sketch12 = doc.addObject("Sketcher::SketchObject", "Sketch011")
body.addObject(sketch12)
sketch12.AttachmentSupport = (doc.XZ_Plane, [""])
sketch12.MapMode = "FlatFace"
sketch12.AttachmentOffset = App.Placement(App.Vector(0, 0, -3), App.Rotation())
add_polygon(sketch12, [(-60, -4), (-60, -10), (-66, -13), (-71, -10), (-71, -4), (-66, -1)])  # lines 0-5
add_polygon(sketch12, [(46, -4), (51, -1), (57, -4), (57, -10), (51, -13), (46, -10)])  # lines 6-11
sketch12.addConstraint(Sketcher.Constraint("Vertical", 0))
sketch12.addConstraint(Sketcher.Constraint("Vertical", 3))
sketch12.addConstraint(Sketcher.Constraint("Vertical", 8))
sketch12.addConstraint(Sketcher.Constraint("Vertical", 11))
sketch12.addConstraint(Sketcher.Constraint("Parallel", 1, 4))
sketch12.addConstraint(Sketcher.Constraint("Parallel", 2, 5))
sketch12.addConstraint(Sketcher.Constraint("Parallel", 4, 6))
sketch12.addConstraint(Sketcher.Constraint("Parallel", 5, 7))
sketch12.addConstraint(Sketcher.Constraint("Parallel", 6, 9))
sketch12.addConstraint(Sketcher.Constraint("Parallel", 7, 10))
sketch12.addConstraint(Sketcher.Constraint("Horizontal", 0, 2, 2, 2))
sketch12.addConstraint(Sketcher.Constraint("Horizontal", 3, 2, 5, 2))
sketch12.addConstraint(Sketcher.Constraint("Horizontal", 4, 2, 6, 2))
sketch12.addConstraint(Sketcher.Constraint("Horizontal", 5, 2, 7, 2))
sketch12.addConstraint(Sketcher.Constraint("Horizontal", 2, 2, 8, 2))
sketch12.addConstraint(Sketcher.Constraint("Horizontal", 1, 2, 9, 2))
sketch12.addConstraint(Sketcher.Constraint("Horizontal", 8, 2, 10, 2))
sketch12.addConstraint(Sketcher.Constraint("Vertical", 1, 2, 4, 2))
sketch12.addConstraint(Sketcher.Constraint("Angle", 1, Q("-150 deg")))
sketch12.addConstraint(Sketcher.Constraint("DistanceX", 4, 2, 6, 2, Q("117 mm")))
sketch12.addConstraint(Sketcher.Constraint("DistanceX", 2, 2, 0, 2, Q("10.5 mm")))
sketch12.addConstraint(Sketcher.Constraint("DistanceY", 0, 2, 0, 1, Q("6.062178 mm")))
sketch12.addConstraint(Sketcher.Constraint("DistanceX", 0, 2, -1, 1, Q("60.288445 mm")))
sketch12.addConstraint(Sketcher.Constraint("DistanceY", 0, 2, -1, 1, Q("10.115853 mm")))
pocket7 = doc.addObject("PartDesign::Pocket", "Pocket006")
body.addObject(pocket7)
pocket7.Profile = sketch12
pocket7.Length = 10
pocket7.Reversed = True

doc.recompute()
